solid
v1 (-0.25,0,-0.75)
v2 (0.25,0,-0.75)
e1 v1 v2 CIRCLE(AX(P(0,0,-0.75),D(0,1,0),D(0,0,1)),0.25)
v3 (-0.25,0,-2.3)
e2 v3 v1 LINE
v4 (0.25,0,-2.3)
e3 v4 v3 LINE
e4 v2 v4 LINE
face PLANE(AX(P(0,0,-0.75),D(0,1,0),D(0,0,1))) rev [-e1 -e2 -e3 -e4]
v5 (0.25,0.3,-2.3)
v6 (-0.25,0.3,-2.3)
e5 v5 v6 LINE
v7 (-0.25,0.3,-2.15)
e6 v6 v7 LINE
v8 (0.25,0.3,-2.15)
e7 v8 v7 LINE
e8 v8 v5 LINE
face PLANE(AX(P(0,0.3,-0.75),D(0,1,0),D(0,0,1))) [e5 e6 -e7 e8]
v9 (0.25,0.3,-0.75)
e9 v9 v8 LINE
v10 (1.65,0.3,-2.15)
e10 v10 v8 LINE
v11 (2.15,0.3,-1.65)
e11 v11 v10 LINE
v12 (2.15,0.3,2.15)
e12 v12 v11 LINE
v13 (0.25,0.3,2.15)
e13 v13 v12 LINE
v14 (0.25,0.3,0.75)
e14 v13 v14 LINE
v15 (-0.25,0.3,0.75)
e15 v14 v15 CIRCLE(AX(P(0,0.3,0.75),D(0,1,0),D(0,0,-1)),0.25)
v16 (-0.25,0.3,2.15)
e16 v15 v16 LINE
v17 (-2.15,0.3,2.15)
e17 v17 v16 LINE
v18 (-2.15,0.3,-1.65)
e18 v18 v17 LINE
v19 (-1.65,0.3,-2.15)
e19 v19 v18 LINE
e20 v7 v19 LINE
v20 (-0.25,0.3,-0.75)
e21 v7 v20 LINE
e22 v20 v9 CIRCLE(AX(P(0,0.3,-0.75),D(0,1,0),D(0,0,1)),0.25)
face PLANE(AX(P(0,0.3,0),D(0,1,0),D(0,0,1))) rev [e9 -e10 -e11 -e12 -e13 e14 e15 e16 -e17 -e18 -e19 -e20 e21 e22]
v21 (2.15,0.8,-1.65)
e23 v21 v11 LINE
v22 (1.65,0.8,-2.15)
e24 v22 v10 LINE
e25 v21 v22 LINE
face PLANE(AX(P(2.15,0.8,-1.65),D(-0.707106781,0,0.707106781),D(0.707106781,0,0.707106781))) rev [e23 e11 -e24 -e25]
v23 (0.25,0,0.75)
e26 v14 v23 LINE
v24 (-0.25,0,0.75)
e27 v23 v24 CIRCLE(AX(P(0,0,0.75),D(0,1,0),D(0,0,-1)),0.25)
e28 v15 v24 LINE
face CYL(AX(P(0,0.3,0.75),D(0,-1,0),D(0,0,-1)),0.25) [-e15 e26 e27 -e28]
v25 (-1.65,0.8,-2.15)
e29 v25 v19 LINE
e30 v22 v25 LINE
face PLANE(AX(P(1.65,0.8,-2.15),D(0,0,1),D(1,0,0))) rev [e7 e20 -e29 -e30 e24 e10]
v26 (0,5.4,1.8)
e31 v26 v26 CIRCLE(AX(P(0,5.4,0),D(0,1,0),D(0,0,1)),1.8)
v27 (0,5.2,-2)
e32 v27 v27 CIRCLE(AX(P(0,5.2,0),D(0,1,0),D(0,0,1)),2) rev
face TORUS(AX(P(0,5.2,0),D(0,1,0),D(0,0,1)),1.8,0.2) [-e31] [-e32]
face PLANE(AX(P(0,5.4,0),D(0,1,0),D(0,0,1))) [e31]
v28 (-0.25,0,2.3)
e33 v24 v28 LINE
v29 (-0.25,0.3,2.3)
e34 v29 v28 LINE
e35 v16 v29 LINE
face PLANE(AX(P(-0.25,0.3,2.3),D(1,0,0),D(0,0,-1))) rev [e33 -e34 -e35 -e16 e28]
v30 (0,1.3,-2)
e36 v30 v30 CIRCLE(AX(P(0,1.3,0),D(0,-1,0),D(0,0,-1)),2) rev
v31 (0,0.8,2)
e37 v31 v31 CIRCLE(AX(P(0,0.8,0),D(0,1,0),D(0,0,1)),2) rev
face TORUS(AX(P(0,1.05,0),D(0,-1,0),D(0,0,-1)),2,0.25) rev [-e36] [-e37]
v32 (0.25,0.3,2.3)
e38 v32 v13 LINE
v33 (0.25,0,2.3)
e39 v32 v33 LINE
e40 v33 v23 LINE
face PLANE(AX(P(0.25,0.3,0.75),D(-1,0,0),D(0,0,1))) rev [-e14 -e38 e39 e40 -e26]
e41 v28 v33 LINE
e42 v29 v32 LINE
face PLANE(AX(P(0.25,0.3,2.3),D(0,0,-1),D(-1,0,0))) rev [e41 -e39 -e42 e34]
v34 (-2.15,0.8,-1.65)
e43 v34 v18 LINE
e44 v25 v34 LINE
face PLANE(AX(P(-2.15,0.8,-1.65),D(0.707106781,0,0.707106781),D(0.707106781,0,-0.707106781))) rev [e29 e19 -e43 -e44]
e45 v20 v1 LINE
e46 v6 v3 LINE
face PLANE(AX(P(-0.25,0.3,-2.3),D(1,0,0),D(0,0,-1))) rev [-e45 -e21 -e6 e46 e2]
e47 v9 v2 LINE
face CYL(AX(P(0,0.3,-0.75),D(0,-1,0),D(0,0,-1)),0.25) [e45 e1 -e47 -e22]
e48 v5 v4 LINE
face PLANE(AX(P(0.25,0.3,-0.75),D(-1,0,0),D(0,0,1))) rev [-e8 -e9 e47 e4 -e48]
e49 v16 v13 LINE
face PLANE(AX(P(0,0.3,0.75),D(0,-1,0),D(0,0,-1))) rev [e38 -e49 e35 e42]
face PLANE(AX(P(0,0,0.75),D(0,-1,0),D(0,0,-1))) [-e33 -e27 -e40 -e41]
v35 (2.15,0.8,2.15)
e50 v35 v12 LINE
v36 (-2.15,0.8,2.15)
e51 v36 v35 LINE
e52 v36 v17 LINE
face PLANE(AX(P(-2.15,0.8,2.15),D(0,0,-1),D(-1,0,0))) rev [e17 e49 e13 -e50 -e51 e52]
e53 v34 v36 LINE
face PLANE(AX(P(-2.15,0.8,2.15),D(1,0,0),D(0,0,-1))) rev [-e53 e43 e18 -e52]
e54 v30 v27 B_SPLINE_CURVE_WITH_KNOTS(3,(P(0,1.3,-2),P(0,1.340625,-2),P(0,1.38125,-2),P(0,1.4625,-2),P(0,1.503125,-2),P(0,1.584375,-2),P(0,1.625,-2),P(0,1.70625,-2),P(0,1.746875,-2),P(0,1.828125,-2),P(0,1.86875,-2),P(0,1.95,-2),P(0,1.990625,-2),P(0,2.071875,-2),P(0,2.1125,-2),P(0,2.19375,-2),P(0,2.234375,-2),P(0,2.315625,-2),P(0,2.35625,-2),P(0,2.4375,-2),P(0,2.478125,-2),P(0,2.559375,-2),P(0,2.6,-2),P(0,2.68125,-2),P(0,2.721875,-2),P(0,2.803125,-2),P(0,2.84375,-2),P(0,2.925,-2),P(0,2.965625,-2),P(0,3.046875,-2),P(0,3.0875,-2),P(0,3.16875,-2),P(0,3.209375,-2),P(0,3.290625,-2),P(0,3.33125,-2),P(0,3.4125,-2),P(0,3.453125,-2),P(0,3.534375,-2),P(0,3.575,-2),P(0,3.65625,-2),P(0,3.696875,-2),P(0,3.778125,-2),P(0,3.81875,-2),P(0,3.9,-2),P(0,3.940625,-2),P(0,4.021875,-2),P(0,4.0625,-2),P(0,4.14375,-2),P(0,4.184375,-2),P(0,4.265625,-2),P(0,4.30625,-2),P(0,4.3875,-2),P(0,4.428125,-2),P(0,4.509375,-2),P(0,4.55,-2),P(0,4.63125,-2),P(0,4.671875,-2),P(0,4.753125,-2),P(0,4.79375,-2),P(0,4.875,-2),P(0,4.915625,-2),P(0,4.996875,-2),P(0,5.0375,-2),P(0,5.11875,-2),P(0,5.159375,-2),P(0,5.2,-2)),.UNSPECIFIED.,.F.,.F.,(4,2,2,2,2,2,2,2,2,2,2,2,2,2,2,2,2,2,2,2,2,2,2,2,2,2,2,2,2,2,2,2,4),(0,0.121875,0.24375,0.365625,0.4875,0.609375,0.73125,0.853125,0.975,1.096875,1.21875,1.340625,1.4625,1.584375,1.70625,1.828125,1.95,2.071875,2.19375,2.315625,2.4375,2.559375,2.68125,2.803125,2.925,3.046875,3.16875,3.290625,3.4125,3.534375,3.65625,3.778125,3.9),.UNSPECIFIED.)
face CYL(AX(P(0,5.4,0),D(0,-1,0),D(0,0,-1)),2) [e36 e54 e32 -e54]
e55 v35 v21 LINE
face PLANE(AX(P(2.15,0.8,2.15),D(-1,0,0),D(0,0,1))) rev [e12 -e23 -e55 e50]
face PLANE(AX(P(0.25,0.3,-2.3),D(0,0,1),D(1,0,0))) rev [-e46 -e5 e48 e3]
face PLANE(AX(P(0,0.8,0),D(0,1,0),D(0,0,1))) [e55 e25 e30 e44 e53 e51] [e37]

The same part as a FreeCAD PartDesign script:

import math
import FreeCAD as App
import Part
import Sketcher
from FreeCAD import Vector


def edges_at(feature, points):
    """Names of the edges that pass closest to the given points."""
    edges = feature.Shape.Edges
    near = lambda p: min(range(len(edges)), key=lambda i: edges[i].distToShape(Part.Vertex(*p))[0])
    return sorted({f"Edge{near(p) + 1}" for p in points})

doc = App.newDocument("Part")
body = doc.addObject("PartDesign::Body", "Body")

sketch1 = body.newObject("Sketcher::SketchObject", "Sketch")
sketch1.AttachmentSupport = (doc.getObject("XZ_Plane"), [""])
sketch1.MapMode = "FlatFace"
sketch1.addGeometry(Part.LineSegment(Vector(0.25, -0.75, 0), Vector(0.25, -2.3, 0)), False)
sketch1.addGeometry(Part.LineSegment(Vector(0.25, -2.3, 0), Vector(-0.25, -2.3, 0)), False)
sketch1.addGeometry(Part.LineSegment(Vector(-0.25, -2.3, 0), Vector(-0.25, -0.75, 0)), False)
sketch1.addGeometry(Part.ArcOfCircle(Part.Circle(Vector(0, -0.75, 0), Vector(0, 0, 1), 0.25), math.radians(0), math.radians(180)), False)
sketch1.addConstraint(Sketcher.Constraint("Coincident", 0, 2, 1, 1))
sketch1.addConstraint(Sketcher.Constraint("Coincident", 1, 2, 2, 1))
sketch1.addConstraint(Sketcher.Constraint("Tangent", 2, 2, 3, 2))
sketch1.addConstraint(Sketcher.Constraint("Tangent", 3, 1, 0, 1))
sketch1.addConstraint(Sketcher.Constraint("Vertical", 0))
sketch1.addConstraint(Sketcher.Constraint("Horizontal", 1))
sketch1.addConstraint(Sketcher.Constraint("Vertical", 2))
sketch1.addConstraint(Sketcher.Constraint("PointOnObject", 3, 3, -2))
sketch1.addConstraint(Sketcher.Constraint("Radius", 3, 0.25))
sketch1.addConstraint(Sketcher.Constraint("DistanceY", 0, 2, 0, 1, 1.55))
sketch1.addConstraint(Sketcher.Constraint("DistanceY", 0, 2, -1, 1, 2.3))
pad1 = body.newObject("PartDesign::Pad", "Pad")
pad1.Profile = sketch1
pad1.Length = 0.3
pad1.Reversed = True
body2 = doc.addObject("PartDesign::Body", "Body001")

sketch2 = body2.newObject("Sketcher::SketchObject", "Sketch001")
sketch2.AttachmentSupport = (doc.getObject("XZ_Plane001"), [""])
sketch2.MapMode = "FlatFace"
sketch2.addGeometry(Part.LineSegment(Vector(0.25, 2.3, 0), Vector(0.25, 0.75, 0)), False)
sketch2.addGeometry(Part.ArcOfCircle(Part.Circle(Vector(0, 0.75, 0), Vector(0, 0, 1), 0.25), math.radians(180), math.radians(360)), False)
sketch2.addGeometry(Part.LineSegment(Vector(-0.25, 0.75, 0), Vector(-0.25, 2.3, 0)), False)
sketch2.addGeometry(Part.LineSegment(Vector(-0.25, 2.3, 0), Vector(0.25, 2.3, 0)), False)
sketch2.addConstraint(Sketcher.Constraint("Tangent", 0, 2, 1, 2))
sketch2.addConstraint(Sketcher.Constraint("Tangent", 1, 1, 2, 1))
sketch2.addConstraint(Sketcher.Constraint("Coincident", 2, 2, 3, 1))
sketch2.addConstraint(Sketcher.Constraint("Coincident", 3, 2, 0, 1))
sketch2.addConstraint(Sketcher.Constraint("Vertical", 0))
sketch2.addConstraint(Sketcher.Constraint("Vertical", 2))
sketch2.addConstraint(Sketcher.Constraint("Horizontal", 3))
sketch2.addConstraint(Sketcher.Constraint("PointOnObject", 1, 3, -2))
sketch2.addConstraint(Sketcher.Constraint("Radius", 1, 0.25))
sketch2.addConstraint(Sketcher.Constraint("DistanceY", 0, 2, 0, 1, 1.55))
sketch2.addConstraint(Sketcher.Constraint("DistanceY", -1, 1, 2, 2, 2.3))
pad2 = body2.newObject("PartDesign::Pad", "Pad001")
pad2.Profile = sketch2
pad2.Length = 0.3
pad2.Reversed = True
body.AllowCompound = True
doc.recompute()

boolean = body.newObject("PartDesign::Boolean", "Boolean")
boolean.Type = "Fuse"
boolean.addObjects([body2])

sketch3 = body.newObject("Sketcher::SketchObject", "Sketch002")
sketch3.AttachmentSupport = (doc.getObject("XZ_Plane"), [""])
sketch3.MapMode = "FlatFace"
sketch3.AttachmentOffset = App.Placement(Vector(0, 0, -0.3), App.Rotation())
sketch3.addGeometry(Part.LineSegment(Vector(-2.1, 2.1, 0), Vector(2.1, 2.1, 0)), False)
sketch3.addGeometry(Part.LineSegment(Vector(2.1, 2.1, 0), Vector(2.1, -1.6, 0)), False)
sketch3.addGeometry(Part.LineSegment(Vector(2.1, -1.6, 0), Vector(1.6, -2.1, 0)), False)
sketch3.addGeometry(Part.LineSegment(Vector(1.6, -2.1, 0), Vector(-1.6, -2.1, 0)), False)
sketch3.addGeometry(Part.LineSegment(Vector(-1.6, -2.1, 0), Vector(-2.1, -1.6, 0)), False)
sketch3.addGeometry(Part.LineSegment(Vector(-2.1, -1.6, 0), Vector(-2.1, 2.1, 0)), False)
sketch3.addConstraint(Sketcher.Constraint("Coincident", 0, 2, 1, 1))
sketch3.addConstraint(Sketcher.Constraint("Coincident", 1, 2, 2, 1))
sketch3.addConstraint(Sketcher.Constraint("Coincident", 2, 2, 3, 1))
sketch3.addConstraint(Sketcher.Constraint("Coincident", 3, 2, 4, 1))
sketch3.addConstraint(Sketcher.Constraint("Coincident", 4, 2, 5, 1))
sketch3.addConstraint(Sketcher.Constraint("Coincident", 5, 2, 0, 1))
sketch3.addConstraint(Sketcher.Constraint("Horizontal", 0))
sketch3.addConstraint(Sketcher.Constraint("Vertical", 1))
sketch3.addConstraint(Sketcher.Constraint("Horizontal", 3))
sketch3.addConstraint(Sketcher.Constraint("Vertical", 5))
sketch3.addConstraint(Sketcher.Constraint("Symmetric", 1, 2, 4, 2, -2))
sketch3.addConstraint(Sketcher.Constraint("Perpendicular", 2, 4))
sketch3.addConstraint(Sketcher.Constraint("Equal", 2, 4))
sketch3.addConstraint(Sketcher.Constraint("DistanceX", 0, 1, 0, 2, 4.3))
sketch3.addConstraint(Sketcher.Constraint("DistanceX", 3, 2, 3, 1, 3.3))
sketch3.addConstraint(Sketcher.Constraint("DistanceY", 1, 2, 1, 1, 3.8))
sketch3.addConstraint(Sketcher.Constraint("DistanceY", -1, 1, 0, 2, 2.15))
pad3 = body.newObject("PartDesign::Pad", "Pad002")
pad3.Profile = sketch3
pad3.Length = 0.5
pad3.Reversed = True

sketch4 = body.newObject("Sketcher::SketchObject", "Sketch003")
sketch4.AttachmentSupport = (doc.getObject("XZ_Plane"), [""])
sketch4.MapMode = "FlatFace"
sketch4.AttachmentOffset = App.Placement(Vector(0, 0, -0.8), App.Rotation())
sketch4.addGeometry(Part.Circle(Vector(0, 0, 0), Vector(0, 0, 1), 2), False)
sketch4.addConstraint(Sketcher.Constraint("Coincident", 0, 3, -1, 1))
sketch4.addConstraint(Sketcher.Constraint("Diameter", 0, 4.0))
pad4 = body.newObject("PartDesign::Pad", "Pad003")
pad4.Profile = sketch4
pad4.Length = 4.6
pad4.Reversed = True
doc.recompute()

fillet = body.newObject("PartDesign::Fillet", "Fillet")
fillet.Base = (pad4, edges_at(pad4, [(0, 5.4, 2)]))
fillet.Radius = 0.2

sketch5 = body.newObject("Sketcher::SketchObject", "Sketch004")
sketch5.AttachmentSupport = (doc.getObject("XY_Plane"), [""])
sketch5.MapMode = "FlatFace"
sketch5.addGeometry(Part.Circle(Vector(2, 1.05, 0), Vector(0, 0, 1), 0.25), False)
sketch5.addConstraint(Sketcher.Constraint("Diameter", 0, 0.5))
sketch5.addConstraint(Sketcher.Constraint("DistanceX", -1, 1, 0, 3, 2.0))
sketch5.addConstraint(Sketcher.Constraint("DistanceY", -1, 1, 0, 3, 1.05))
groove = body.newObject("PartDesign::Groove", "Groove")
groove.Profile = sketch5
groove.ReferenceAxis = (sketch5, ["V_Axis"])
groove.Angle = 360

doc.recompute()
